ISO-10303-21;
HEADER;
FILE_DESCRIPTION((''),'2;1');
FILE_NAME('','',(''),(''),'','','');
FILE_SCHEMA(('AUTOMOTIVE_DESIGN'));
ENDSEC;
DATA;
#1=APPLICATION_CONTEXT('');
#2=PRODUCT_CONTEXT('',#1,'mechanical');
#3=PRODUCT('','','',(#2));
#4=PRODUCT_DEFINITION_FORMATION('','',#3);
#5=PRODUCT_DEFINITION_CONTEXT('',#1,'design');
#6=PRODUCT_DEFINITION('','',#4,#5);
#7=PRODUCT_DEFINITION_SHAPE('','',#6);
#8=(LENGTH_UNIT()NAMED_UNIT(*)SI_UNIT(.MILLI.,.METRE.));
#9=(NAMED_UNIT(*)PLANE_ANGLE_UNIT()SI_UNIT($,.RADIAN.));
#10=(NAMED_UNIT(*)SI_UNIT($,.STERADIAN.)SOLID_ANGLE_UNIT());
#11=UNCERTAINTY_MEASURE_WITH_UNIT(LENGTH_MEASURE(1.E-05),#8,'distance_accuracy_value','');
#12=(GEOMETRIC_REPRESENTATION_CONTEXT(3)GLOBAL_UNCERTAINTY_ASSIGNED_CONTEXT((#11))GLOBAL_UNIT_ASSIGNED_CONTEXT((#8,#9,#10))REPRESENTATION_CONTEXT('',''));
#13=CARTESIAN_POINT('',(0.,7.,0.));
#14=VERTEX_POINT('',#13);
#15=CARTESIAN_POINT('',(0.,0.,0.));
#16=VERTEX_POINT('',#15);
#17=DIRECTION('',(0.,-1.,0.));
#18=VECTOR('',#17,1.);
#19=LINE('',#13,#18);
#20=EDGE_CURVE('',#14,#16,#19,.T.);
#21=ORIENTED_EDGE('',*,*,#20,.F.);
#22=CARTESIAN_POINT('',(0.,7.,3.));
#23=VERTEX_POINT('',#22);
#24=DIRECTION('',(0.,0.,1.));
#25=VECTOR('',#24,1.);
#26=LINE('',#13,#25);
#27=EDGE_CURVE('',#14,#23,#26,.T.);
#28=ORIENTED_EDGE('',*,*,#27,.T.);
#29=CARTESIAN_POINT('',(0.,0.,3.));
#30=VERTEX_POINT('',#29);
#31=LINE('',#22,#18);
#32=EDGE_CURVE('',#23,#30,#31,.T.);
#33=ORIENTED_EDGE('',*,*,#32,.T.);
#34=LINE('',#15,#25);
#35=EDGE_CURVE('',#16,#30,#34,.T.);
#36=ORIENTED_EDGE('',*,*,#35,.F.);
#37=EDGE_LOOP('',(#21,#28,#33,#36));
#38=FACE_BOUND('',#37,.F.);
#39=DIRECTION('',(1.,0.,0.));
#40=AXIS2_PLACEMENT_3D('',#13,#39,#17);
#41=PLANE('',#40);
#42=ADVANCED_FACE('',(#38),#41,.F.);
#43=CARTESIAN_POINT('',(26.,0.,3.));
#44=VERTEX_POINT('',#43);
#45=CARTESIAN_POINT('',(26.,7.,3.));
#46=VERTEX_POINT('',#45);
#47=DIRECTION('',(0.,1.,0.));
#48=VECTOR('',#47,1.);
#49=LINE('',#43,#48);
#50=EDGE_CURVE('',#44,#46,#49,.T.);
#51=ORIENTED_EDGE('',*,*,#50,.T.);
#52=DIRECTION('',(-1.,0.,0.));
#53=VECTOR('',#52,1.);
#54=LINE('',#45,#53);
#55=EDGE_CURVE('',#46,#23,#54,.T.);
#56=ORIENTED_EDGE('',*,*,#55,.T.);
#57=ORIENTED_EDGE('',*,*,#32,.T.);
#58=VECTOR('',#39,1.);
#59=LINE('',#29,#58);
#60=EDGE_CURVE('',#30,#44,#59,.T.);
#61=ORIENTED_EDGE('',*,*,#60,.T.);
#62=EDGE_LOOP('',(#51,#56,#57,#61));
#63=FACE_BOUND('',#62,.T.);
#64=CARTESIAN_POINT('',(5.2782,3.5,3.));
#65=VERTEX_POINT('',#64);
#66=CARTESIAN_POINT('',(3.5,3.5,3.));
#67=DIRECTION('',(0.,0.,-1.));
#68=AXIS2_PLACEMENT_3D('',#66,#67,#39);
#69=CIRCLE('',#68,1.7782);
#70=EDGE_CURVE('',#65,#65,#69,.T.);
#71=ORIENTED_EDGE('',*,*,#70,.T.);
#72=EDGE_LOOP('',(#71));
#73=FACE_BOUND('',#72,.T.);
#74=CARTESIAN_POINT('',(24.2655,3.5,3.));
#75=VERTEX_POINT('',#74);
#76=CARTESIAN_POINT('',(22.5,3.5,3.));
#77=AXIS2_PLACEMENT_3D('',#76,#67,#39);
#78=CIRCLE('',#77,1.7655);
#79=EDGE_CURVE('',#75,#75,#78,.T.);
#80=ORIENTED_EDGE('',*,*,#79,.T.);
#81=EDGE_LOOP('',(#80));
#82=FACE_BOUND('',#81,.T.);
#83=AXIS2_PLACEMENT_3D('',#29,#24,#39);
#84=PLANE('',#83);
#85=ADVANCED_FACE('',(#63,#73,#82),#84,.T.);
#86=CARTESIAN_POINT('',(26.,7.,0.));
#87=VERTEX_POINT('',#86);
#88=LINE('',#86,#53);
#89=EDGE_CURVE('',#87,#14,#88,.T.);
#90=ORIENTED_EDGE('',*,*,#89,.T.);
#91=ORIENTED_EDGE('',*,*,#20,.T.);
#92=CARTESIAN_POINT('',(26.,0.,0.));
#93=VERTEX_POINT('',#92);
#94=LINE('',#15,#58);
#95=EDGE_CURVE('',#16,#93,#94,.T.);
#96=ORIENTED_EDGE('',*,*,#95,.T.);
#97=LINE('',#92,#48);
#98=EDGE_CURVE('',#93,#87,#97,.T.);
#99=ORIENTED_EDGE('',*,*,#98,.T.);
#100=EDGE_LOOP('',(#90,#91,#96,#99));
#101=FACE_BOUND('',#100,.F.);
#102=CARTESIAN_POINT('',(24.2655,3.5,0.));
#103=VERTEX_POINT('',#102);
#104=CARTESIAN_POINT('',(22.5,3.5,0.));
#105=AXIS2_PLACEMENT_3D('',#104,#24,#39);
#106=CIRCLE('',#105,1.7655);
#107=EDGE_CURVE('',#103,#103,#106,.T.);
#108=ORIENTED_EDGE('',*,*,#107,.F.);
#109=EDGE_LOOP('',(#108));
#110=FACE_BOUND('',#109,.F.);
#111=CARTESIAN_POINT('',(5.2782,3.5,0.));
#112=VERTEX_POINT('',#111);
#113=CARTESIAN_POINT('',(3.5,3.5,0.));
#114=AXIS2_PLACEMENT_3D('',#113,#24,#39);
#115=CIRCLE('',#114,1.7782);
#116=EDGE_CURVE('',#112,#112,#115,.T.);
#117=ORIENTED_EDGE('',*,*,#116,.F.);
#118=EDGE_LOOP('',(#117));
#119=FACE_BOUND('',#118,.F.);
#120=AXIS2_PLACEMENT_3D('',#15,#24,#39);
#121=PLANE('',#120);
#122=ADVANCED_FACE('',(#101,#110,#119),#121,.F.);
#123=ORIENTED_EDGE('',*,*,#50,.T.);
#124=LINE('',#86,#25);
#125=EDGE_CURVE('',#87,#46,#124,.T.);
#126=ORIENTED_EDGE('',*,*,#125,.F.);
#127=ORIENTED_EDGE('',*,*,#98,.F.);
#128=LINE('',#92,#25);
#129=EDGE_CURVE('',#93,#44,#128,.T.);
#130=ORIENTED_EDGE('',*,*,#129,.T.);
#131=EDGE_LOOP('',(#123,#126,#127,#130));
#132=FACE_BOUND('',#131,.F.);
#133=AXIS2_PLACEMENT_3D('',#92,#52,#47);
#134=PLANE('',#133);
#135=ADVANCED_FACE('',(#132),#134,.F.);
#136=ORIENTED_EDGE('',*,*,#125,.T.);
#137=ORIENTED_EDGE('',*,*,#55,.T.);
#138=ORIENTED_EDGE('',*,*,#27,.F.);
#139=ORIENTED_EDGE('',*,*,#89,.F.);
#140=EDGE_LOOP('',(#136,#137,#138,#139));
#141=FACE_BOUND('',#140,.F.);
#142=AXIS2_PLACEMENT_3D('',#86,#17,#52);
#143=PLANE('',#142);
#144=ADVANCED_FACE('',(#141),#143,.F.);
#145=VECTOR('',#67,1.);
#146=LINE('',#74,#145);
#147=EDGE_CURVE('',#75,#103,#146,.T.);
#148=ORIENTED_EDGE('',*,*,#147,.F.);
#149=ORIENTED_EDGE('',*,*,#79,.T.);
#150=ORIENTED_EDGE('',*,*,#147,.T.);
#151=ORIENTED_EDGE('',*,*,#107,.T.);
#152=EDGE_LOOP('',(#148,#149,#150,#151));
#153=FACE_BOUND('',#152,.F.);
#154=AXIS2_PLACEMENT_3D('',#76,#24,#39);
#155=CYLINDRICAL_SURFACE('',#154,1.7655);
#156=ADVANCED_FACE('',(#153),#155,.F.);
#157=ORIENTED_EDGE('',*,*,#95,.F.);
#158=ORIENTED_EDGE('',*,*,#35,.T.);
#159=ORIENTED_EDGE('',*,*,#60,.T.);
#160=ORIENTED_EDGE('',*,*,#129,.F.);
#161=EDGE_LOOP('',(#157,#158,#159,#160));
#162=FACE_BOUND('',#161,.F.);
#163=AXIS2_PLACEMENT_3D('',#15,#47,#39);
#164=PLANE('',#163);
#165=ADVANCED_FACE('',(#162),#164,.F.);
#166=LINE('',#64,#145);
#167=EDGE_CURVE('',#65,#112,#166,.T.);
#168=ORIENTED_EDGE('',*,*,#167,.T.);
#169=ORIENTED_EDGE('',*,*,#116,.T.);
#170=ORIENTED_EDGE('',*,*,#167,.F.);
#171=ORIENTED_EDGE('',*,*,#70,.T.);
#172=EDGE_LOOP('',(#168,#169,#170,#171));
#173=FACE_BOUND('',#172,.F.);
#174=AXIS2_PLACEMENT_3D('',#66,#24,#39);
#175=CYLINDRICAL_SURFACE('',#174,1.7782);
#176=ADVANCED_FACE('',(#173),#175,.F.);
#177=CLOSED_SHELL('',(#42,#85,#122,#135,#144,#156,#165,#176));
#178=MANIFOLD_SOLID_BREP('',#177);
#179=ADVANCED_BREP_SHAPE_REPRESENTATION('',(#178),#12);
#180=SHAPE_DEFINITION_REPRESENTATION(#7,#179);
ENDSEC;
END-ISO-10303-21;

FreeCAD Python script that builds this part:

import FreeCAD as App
import Part
import Sketcher
Q = App.Units.Quantity


def add_polygon(sketch, points):
    """Adds a closed chain of lines whose ends are joined by coincident constraints."""
    first, n = sketch.GeometryCount, len(points)
    for a, b in zip(points, points[1:] + points[:1]):
        sketch.addGeometry(Part.LineSegment(App.Vector(*a, 0), App.Vector(*b, 0)), False)
    for i in range(n):
        sketch.addConstraint(Sketcher.Constraint("Coincident", first + i, 2, first + (i + 1) % n, 1))

doc = App.newDocument("Part")
params = doc.addObject("Spreadsheet::Sheet", "Params")
for row, (alias, value) in enumerate([
    ("sketch1_width", "26 mm"),
    ("sketch1_height", "7 mm"),
    ("pad1_length", "3 mm"),
    ("pocket1_length", "4.25 mm"),
], start=1):
    params.set(f"A{row}", alias)
    params.set(f"B{row}", "=" + value)
    params.setAlias(f"B{row}", alias)

body = doc.addObject("PartDesign::Body", "Body")

sketch1 = doc.addObject("Sketcher::SketchObject", "Sketch")
body.addObject(sketch1)
sketch1.AttachmentSupport = (doc.XY_Plane, [""])
sketch1.MapMode = "FlatFace"
add_polygon(sketch1, [(0, 7), (0, 0), (26, 0), (26, 7)])
sketch1.addConstraint([
    Sketcher.Constraint("Vertical", 0),
    Sketcher.Constraint("Horizontal", 1),
    Sketcher.Constraint("Vertical", 2),
    Sketcher.Constraint("Horizontal", 3),
    Sketcher.Constraint("Coincident", 0, 2, -1, 1),
    Sketcher.Constraint("DistanceX", 1, 1, 1, 2, Q("26 mm")),
    Sketcher.Constraint("DistanceY", 0, 2, 0, 1, Q("7 mm")),
])
sketch1.setExpression("Constraints[9]", "Params.sketch1_width")
sketch1.setExpression("Constraints[10]", "Params.sketch1_height")
pad1 = doc.addObject("PartDesign::Pad", "Pad")
body.addObject(pad1)
pad1.Profile = sketch1
pad1.setExpression("Length", "Params.pad1_length")

sketch2 = doc.addObject("Sketcher::SketchObject", "Sketch001")
body.addObject(sketch2)
sketch2.AttachmentSupport = (doc.XY_Plane, [""])
sketch2.MapMode = "FlatFace"
sketch2.AttachmentOffset = App.Placement(App.Vector(0, 0, 3), App.Rotation())
sketch2.addGeometry([
    Part.Circle(App.Vector(3.5, 3.5, 0), App.Vector(0, 0, 1), 1.7782),
    Part.Circle(App.Vector(22.5, 3.5, 0), App.Vector(0, 0, 1), 1.7655),
], False)
sketch2.addConstraint([
    Sketcher.Constraint("Horizontal", 0, 3, 1, 3),
    Sketcher.Constraint("Diameter", 1, Q("3.531 mm")),
    Sketcher.Constraint("DistanceX", 0, 3, 1, 3, Q("19 mm")),
    Sketcher.Constraint("Diameter", 0, Q("3.5564 mm")),
    Sketcher.Constraint("DistanceX", -1, 1, 0, 3, Q("3.5 mm")),
    Sketcher.Constraint("DistanceY", -1, 1, 0, 3, Q("3.5 mm")),
])
pocket1 = doc.addObject("PartDesign::Pocket", "Pocket")
body.addObject(pocket1)
pocket1.Profile = sketch2
pocket1.setExpression("Length", "Params.pocket1_length")

doc.recompute()
